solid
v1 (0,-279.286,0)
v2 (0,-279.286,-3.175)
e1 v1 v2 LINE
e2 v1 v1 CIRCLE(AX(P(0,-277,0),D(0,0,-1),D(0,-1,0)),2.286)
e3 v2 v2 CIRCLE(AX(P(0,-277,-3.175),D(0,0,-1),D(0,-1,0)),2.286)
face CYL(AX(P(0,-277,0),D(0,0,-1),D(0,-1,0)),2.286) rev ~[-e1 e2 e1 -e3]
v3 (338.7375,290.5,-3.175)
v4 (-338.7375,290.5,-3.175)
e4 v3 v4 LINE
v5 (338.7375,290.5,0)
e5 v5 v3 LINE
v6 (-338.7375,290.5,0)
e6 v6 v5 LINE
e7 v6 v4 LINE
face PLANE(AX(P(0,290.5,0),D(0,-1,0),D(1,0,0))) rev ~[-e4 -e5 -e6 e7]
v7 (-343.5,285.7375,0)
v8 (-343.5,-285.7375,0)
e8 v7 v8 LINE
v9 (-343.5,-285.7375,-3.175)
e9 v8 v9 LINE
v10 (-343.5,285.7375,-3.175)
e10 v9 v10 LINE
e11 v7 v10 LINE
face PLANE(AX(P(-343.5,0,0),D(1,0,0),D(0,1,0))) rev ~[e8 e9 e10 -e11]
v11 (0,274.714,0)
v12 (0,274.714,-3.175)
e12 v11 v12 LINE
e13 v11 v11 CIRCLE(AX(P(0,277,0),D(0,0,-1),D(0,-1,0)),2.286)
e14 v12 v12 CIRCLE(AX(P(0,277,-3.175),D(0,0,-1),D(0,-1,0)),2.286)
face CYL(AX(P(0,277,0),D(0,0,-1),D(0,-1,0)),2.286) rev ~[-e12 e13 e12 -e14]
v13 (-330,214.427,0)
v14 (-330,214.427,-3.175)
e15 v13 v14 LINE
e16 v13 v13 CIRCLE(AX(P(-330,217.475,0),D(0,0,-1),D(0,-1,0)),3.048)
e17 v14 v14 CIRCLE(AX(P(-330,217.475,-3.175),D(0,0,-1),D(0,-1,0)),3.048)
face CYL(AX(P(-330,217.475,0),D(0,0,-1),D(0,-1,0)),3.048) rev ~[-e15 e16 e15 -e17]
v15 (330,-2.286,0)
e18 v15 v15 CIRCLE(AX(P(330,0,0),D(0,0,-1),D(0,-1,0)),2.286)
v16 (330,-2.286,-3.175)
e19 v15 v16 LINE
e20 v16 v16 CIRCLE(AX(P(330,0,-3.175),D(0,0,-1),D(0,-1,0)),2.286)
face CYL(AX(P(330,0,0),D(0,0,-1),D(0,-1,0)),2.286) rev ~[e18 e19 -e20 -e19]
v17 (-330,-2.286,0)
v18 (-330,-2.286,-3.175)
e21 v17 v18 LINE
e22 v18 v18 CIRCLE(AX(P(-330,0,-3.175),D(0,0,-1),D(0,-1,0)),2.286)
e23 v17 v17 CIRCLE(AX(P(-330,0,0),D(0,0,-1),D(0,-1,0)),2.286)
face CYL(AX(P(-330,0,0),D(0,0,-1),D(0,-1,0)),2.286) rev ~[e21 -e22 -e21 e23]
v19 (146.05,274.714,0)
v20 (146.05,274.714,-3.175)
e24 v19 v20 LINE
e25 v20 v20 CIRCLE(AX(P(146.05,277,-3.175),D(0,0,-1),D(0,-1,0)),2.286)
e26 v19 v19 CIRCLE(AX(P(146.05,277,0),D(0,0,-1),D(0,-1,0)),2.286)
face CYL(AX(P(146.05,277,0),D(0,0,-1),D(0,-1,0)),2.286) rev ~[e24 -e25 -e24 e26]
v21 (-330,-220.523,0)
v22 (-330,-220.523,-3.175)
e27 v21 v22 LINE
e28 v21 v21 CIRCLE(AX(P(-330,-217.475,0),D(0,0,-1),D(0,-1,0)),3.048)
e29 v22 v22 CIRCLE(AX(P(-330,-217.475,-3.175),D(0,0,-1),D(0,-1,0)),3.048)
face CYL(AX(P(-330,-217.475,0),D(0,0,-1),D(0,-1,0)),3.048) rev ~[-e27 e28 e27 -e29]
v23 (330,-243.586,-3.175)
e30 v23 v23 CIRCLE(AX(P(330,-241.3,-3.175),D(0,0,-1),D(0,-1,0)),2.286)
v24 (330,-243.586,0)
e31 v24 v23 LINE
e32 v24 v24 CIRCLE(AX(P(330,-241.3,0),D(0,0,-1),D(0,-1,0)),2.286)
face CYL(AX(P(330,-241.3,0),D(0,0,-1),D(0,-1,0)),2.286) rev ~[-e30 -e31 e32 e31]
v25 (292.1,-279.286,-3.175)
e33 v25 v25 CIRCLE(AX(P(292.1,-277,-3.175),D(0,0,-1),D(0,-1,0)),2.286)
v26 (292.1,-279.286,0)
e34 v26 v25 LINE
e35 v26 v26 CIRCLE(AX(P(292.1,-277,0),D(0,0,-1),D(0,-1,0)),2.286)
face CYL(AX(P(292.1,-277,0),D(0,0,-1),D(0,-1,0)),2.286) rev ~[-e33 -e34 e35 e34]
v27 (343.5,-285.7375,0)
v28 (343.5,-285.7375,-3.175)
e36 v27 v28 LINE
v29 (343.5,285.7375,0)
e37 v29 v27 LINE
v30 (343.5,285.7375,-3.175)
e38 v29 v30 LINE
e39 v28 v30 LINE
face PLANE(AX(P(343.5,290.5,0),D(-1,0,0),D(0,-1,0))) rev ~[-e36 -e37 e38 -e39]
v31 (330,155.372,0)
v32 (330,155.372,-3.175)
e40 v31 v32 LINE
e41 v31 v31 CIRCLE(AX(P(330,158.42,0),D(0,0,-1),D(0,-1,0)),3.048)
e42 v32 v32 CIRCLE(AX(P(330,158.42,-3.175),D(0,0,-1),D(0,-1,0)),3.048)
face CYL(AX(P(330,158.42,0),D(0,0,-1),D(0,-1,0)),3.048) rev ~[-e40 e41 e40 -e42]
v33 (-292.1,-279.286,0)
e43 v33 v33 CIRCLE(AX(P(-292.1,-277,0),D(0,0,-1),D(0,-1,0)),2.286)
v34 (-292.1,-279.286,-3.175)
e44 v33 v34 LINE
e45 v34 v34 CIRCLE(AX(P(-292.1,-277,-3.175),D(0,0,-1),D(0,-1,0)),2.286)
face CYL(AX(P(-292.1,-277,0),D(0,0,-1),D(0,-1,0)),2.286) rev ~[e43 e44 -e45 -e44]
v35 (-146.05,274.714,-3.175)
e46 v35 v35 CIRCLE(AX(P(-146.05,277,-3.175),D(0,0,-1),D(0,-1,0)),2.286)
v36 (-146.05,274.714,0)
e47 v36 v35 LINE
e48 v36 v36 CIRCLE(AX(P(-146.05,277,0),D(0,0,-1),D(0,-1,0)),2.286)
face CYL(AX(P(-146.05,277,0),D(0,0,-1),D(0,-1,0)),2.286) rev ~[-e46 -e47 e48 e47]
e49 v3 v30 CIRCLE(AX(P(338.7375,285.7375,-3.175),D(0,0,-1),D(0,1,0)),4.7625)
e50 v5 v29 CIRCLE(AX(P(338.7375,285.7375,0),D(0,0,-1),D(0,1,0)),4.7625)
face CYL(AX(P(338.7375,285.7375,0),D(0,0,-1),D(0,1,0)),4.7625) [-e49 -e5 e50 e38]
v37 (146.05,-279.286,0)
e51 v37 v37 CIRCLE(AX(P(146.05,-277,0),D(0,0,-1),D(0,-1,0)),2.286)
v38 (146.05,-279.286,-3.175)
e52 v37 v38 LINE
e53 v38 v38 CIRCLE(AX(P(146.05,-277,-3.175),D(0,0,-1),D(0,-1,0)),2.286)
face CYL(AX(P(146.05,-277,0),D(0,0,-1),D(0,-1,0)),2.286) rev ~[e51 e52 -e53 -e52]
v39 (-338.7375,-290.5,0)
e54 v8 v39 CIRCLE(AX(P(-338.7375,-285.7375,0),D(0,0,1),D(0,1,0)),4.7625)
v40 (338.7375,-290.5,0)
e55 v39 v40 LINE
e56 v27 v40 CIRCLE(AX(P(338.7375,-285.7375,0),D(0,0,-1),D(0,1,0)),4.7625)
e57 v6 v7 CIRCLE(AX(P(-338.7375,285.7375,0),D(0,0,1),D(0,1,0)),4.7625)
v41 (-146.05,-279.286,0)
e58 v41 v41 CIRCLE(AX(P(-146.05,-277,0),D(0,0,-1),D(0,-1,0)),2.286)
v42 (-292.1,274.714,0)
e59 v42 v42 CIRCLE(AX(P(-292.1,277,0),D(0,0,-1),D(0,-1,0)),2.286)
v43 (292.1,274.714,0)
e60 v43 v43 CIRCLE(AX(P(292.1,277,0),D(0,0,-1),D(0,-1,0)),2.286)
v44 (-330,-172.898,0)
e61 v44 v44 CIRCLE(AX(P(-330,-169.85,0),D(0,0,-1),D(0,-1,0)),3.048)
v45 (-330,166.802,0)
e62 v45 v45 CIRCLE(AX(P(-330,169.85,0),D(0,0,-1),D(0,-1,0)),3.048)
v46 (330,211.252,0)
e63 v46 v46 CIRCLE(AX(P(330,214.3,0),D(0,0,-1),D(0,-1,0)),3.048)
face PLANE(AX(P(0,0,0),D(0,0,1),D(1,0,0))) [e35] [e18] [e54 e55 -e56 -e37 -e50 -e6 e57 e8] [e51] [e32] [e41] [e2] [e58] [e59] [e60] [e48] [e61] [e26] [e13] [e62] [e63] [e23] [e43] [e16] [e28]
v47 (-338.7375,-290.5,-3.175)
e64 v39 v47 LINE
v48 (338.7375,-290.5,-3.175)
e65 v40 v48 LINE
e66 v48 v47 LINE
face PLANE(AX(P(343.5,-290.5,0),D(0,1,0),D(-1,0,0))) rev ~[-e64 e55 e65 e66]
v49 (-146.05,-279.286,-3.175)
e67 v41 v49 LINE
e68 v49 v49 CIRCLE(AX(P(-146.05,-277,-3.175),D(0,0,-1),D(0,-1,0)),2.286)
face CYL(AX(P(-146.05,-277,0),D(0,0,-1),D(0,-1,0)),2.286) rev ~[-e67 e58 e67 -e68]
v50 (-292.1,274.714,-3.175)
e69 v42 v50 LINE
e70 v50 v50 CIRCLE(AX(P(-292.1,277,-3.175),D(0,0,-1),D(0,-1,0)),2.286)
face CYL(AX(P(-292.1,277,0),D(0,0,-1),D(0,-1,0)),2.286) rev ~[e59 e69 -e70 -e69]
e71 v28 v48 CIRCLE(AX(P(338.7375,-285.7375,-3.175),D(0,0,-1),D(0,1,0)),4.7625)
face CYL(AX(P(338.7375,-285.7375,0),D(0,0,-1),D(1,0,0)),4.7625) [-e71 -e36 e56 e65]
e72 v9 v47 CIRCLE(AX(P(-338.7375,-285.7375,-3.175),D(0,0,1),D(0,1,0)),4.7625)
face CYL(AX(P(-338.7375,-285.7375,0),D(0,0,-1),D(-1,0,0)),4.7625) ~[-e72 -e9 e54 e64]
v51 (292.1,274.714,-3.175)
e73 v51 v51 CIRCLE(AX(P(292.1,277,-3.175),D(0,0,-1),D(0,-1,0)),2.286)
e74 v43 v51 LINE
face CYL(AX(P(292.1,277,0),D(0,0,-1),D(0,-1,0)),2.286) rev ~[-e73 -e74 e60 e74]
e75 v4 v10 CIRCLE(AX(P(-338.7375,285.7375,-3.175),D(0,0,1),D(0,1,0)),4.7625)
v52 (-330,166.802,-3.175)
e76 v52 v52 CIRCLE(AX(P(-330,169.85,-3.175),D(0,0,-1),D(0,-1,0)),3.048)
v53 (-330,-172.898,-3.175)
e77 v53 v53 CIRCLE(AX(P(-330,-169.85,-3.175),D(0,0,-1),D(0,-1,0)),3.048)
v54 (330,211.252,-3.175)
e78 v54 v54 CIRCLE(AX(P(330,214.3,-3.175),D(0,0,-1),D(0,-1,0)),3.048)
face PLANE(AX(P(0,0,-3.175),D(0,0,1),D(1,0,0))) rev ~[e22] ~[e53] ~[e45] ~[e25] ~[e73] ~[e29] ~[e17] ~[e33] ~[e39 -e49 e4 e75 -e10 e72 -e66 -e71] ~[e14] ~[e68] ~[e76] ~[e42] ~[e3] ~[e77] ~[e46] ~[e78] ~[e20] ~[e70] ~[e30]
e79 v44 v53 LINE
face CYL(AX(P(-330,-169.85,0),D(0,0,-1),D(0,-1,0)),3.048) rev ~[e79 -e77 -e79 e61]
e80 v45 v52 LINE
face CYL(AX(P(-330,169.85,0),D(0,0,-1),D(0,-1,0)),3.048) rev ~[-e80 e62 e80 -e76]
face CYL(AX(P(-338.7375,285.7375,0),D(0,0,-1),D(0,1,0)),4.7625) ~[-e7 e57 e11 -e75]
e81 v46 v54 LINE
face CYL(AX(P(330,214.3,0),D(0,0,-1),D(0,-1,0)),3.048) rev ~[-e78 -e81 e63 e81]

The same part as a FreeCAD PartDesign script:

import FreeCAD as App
import Part
import Sketcher
Q = App.Units.Quantity


def edges_at(feature, points):
    """Names of the edges that pass closest to the given points."""
    edges = feature.Shape.Edges
    near = lambda p: min(range(len(edges)), key=lambda i: edges[i].distToShape(Part.Vertex(*p))[0])
    return sorted({f"Edge{near(p) + 1}" for p in points})


def add_polygon(sketch, points):
    """Adds a closed chain of lines whose ends are joined by coincident constraints."""
    first, n = sketch.GeometryCount, len(points)
    for a, b in zip(points, points[1:] + points[:1]):
        sketch.addGeometry(Part.LineSegment(App.Vector(*a, 0), App.Vector(*b, 0)), False)
    for i in range(n):
        sketch.addConstraint(Sketcher.Constraint("Coincident", first + i, 2, first + (i + 1) % n, 1))

doc = App.newDocument("Part")
body = doc.addObject("PartDesign::Body", "Body")

# Sketch on XY plane
sketch1 = body.newObject("Sketcher::SketchObject", "Sketch")
sketch1.AttachmentSupport = (doc.getObject("XY_Plane"), [""])
sketch1.MapMode = "FlatFace"
add_polygon(sketch1, [(343.5, 290.5), (-343.5, 290.5), (-343.5, -290.5), (343.5, -290.5)])  # lines 0-3
sketch1.addConstraint([
    Sketcher.Constraint("Horizontal", 0),
    Sketcher.Constraint("Vertical", 1),
    Sketcher.Constraint("Horizontal", 2),
    Sketcher.Constraint("Vertical", 3),
    Sketcher.Constraint("Symmetric", 0, 2, 2, 2, -1, 1),
    Sketcher.Constraint("DistanceX", 0, 2, 0, 1, 687.0),
    Sketcher.Constraint("DistanceY", 1, 2, 1, 1, 581.0),
])
pad1 = body.newObject("PartDesign::Pad", "Pad")
pad1.Profile = sketch1
pad1.Length = Q("0.125 in")
pad1.Reversed = True

# Sketch on XY plane
sketch2 = body.newObject("Sketcher::SketchObject", "Sketch001")
sketch2.AttachmentSupport = (doc.getObject("XY_Plane"), [""])
sketch2.MapMode = "FlatFace"
sketch2.addGeometry([
    Part.Circle(App.Vector(-330, 217.475, 0), App.Vector(0, 0, 1), 3.048),  # 0
    Part.Circle(App.Vector(-330, 169.85, 0), App.Vector(0, 0, 1), 3.048),  # 1
    Part.Circle(App.Vector(-330, -217.475, 0), App.Vector(0, 0, 1), 3.048),  # 2
    Part.Circle(App.Vector(-330, -169.85, 0), App.Vector(0, 0, 1), 3.048),  # 3
    Part.Circle(App.Vector(330, 214.3, 0), App.Vector(0, 0, 1), 3.048),  # 4
    Part.Circle(App.Vector(330, 158.42, 0), App.Vector(0, 0, 1), 3.048),  # 5
], False)
sketch2.addConstraint([
    Sketcher.Constraint("Equal", 0, 1),
    Sketcher.Constraint("Equal", 1, 2),
    Sketcher.Constraint("Equal", 2, 3),
    Sketcher.Constraint("Equal", 3, 4),
    Sketcher.Constraint("Equal", 4, 5),
    Sketcher.Constraint("Symmetric", 0, 3, 2, 3, -1),
    Sketcher.Constraint("Symmetric", 1, 3, 3, 3, -1),
    Sketcher.Constraint("Vertical", 0, 3, 1, 3),
    Sketcher.Constraint("Vertical", 4, 3, 5, 3),
    Sketcher.Constraint("Diameter", 0, Q("0.24 in")),
    Sketcher.Constraint("DistanceY", 5, 3, 4, 3, Q("2.2 in")),
    Sketcher.Constraint("DistanceY", 1, 3, 4, 3, Q("1.75 in")),
    Sketcher.Constraint("DistanceY", -1, 1, 0, 3, Q("8.562 in")),
    Sketcher.Constraint("DistanceY", -1, 1, 1, 3, Q("6.687 in")),
    Sketcher.Constraint("DistanceX", 0, 3, -1, 1, 330.0),
    Sketcher.Constraint("DistanceX", -1, 1, 4, 3, 330.0),
])
doc.recompute()
hole = body.newObject("PartDesign::Hole", "Hole")
hole.Profile = sketch2
hole.ThreadType = "None"
hole.Diameter = Q("0.24 in")
hole.DepthType = "ThroughAll"

# Sketch on XY plane
sketch3 = body.newObject("Sketcher::SketchObject", "Sketch002")
sketch3.AttachmentSupport = (doc.getObject("XY_Plane"), [""])
sketch3.MapMode = "FlatFace"
sketch3.addGeometry([
    Part.Circle(App.Vector(-292.1, 277, 0), App.Vector(0, 0, 1), 2.286),  # 0
    Part.Circle(App.Vector(-146.05, 277, 0), App.Vector(0, 0, 1), 2.286),  # 1
    Part.Circle(App.Vector(146.05, 277, 0), App.Vector(0, 0, 1), 2.286),  # 2
    Part.Circle(App.Vector(292.1, 277, 0), App.Vector(0, 0, 1), 2.286),  # 3
    Part.Circle(App.Vector(330, 0, 0), App.Vector(0, 0, 1), 2.286),  # 4
    Part.Circle(App.Vector(330, -241.3, 0), App.Vector(0, 0, 1), 2.286),  # 5
    Part.Circle(App.Vector(292.1, -277, 0), App.Vector(0, 0, 1), 2.286),  # 6
    Part.Circle(App.Vector(146.05, -277, 0), App.Vector(0, 0, 1), 2.286),  # 7
    Part.Circle(App.Vector(0, -277, 0), App.Vector(0, 0, 1), 2.286),  # 8
    Part.Circle(App.Vector(-146.05, -277, 0), App.Vector(0, 0, 1), 2.286),  # 9
    Part.Circle(App.Vector(-292.1, -277, 0), App.Vector(0, 0, 1), 2.286),  # 10
    Part.Circle(App.Vector(-330, 0, 0), App.Vector(0, 0, 1), 2.286),  # 11
    Part.Circle(App.Vector(0, 277, 0), App.Vector(0, 0, 1), 2.286),  # 12
], False)
sketch3.addConstraint([
    Sketcher.Constraint("Equal", 0, 1),
    Sketcher.Constraint("Equal", 1, 2),
    Sketcher.Constraint("Equal", 2, 3),
    Sketcher.Constraint("Equal", 3, 4),
    Sketcher.Constraint("Equal", 4, 5),
    Sketcher.Constraint("Equal", 5, 6),
    Sketcher.Constraint("Equal", 6, 7),
    Sketcher.Constraint("Equal", 7, 8),
    Sketcher.Constraint("Equal", 8, 9),
    Sketcher.Constraint("Equal", 9, 10),
    Sketcher.Constraint("Equal", 10, 11),
    Sketcher.Constraint("Equal", 11, 12),
    Sketcher.Constraint("Symmetric", 0, 3, 6, 3, -1, 1),
    Sketcher.Constraint("Symmetric", 1, 3, 7, 3, -1, 1),
    Sketcher.Constraint("Symmetric", 2, 3, 9, 3, -1, 1),
    Sketcher.Constraint("Symmetric", 3, 3, 10, 3, -1, 1),
    Sketcher.Constraint("Symmetric", 4, 3, 11, 3, -1, 1),
    Sketcher.Constraint("Symmetric", 8, 3, 12, 3, -1, 1),
    Sketcher.Constraint("Symmetric", 1, 3, 2, 3, -2),
    Sketcher.Constraint("Symmetric", 0, 3, 3, 3, -2),
    Sketcher.Constraint("PointOnObject", 4, 3, -1),
    Sketcher.Constraint("PointOnObject", 8, 3, -2),
    Sketcher.Constraint("Horizontal", 0, 3, 1, 3),
    Sketcher.Constraint("Horizontal", 7, 3, 8, 3),
    Sketcher.Constraint("Vertical", 4, 3, 5, 3),
    Sketcher.Constraint("Diameter", 0, Q("0.18 in")),
    Sketcher.Constraint("DistanceX", 0, 3, 3, 3, Q("23 in")),
    Sketcher.Constraint("DistanceY", 5, 3, -1, 1, Q("9.5 in")),
    Sketcher.Constraint("DistanceX", 1, 3, 2, 3, Q("11.5 in")),
    Sketcher.Constraint("DistanceY", -1, 1, 0, 3, Q("10.9055 in")),
    Sketcher.Constraint("DistanceX", -1, 1, 4, 3, 330.0),
])
doc.recompute()
hole2 = body.newObject("PartDesign::Hole", "Hole001")
hole2.Profile = sketch3
hole2.ThreadType = "None"
hole2.Diameter = Q("0.18 in")
hole2.DepthType = "ThroughAll"
doc.recompute()

fillet = body.newObject("PartDesign::Fillet", "Fillet")
fillet.Base = (hole2, edges_at(hole2, [
    (343.5, 290.5, -1.587),
    (-343.5, 290.5, -1.587),
    (343.5, -290.5, -1.587),
    (-343.5, -290.5, -1.587),
]))
fillet.Radius = Q("0.1875 in")

doc.recompute()
